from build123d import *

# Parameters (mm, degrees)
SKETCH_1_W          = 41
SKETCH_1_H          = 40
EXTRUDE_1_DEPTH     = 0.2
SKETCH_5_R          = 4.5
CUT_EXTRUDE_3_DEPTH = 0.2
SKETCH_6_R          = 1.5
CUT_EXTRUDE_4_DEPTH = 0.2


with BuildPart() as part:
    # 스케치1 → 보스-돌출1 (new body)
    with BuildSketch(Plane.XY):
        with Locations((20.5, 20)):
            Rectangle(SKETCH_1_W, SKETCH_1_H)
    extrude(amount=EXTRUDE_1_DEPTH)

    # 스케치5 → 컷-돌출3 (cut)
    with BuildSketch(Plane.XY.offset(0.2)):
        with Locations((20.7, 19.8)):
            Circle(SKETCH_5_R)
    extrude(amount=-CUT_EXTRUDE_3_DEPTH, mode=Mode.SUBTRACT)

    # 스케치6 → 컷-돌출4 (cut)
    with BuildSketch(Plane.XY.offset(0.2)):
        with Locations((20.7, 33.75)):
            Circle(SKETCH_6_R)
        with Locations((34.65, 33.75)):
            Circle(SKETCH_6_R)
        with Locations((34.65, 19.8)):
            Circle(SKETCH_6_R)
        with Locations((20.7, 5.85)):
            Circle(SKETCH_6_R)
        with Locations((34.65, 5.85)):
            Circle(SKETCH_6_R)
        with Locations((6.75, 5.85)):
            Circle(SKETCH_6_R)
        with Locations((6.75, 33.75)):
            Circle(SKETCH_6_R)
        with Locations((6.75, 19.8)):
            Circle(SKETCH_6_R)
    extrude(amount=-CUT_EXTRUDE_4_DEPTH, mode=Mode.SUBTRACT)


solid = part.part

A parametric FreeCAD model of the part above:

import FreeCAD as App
import Part
import Sketcher

V = App.Vector


def add_polygon(sketch, points):
    """Adds a closed chain of lines whose ends are joined by coincident constraints."""
    first, n = sketch.GeometryCount, len(points)
    for a, b in zip(points, points[1:] + points[:1]):
        sketch.addGeometry(Part.LineSegment(App.Vector(*a, 0), App.Vector(*b, 0)), False)
    for i in range(n):
        sketch.addConstraint(Sketcher.Constraint("Coincident", first + i, 2, first + (i + 1) % n, 1))

doc = App.newDocument("Part")
body = doc.addObject("PartDesign::Body", "Body")

# Sketch on XY plane
sketch1 = body.newObject("Sketcher::SketchObject", "Sketch")
sketch1.AttachmentSupport = (doc.getObject("XY_Plane"), [""])
sketch1.MapMode = "FlatFace"
add_polygon(sketch1, [(0, 40), (0, 0), (41, 0), (41, 40)])  # lines 0-3
sketch1.addConstraint([
    Sketcher.Constraint("Vertical", 0),
    Sketcher.Constraint("Horizontal", 1),
    Sketcher.Constraint("Vertical", 2),
    Sketcher.Constraint("Horizontal", 3),
    Sketcher.Constraint("Coincident", 0, 2, -1, 1),
    Sketcher.Constraint("DistanceX", 1, 1, 1, 2, 41.0),
    Sketcher.Constraint("DistanceY", 0, 2, 0, 1, 40.0),
])
pad1 = body.newObject("PartDesign::Pad", "Pad")
pad1.Profile = sketch1
pad1.Length = 0.2

# Sketch on XY plane
sketch2 = body.newObject("Sketcher::SketchObject", "Sketch001")
sketch2.AttachmentSupport = (doc.getObject("XY_Plane"), [""])
sketch2.MapMode = "FlatFace"
sketch2.AttachmentOffset = App.Placement(V(0, 0, 0.2), App.Rotation())
sketch2.addGeometry(Part.Circle(V(20.7, 19.8, 0), V(0, 0, 1), 4.5), False)
sketch2.addConstraint([
    Sketcher.Constraint("Diameter", 0, 9.0),
    Sketcher.Constraint("DistanceX", -1, 1, 0, 3, 20.7),
    Sketcher.Constraint("DistanceY", -1, 1, 0, 3, 19.8),
])
pocket1 = body.newObject("PartDesign::Pocket", "Pocket")
pocket1.Profile = sketch2
pocket1.Length = 0.2

# Sketch on XY plane
sketch3 = body.newObject("Sketcher::SketchObject", "Sketch002")
sketch3.AttachmentSupport = (doc.getObject("XY_Plane"), [""])
sketch3.MapMode = "FlatFace"
sketch3.AttachmentOffset = App.Placement(V(0, 0, 0.2), App.Rotation())
sketch3.addGeometry([
    Part.Circle(V(20.7, 33.8, 0), V(0, 0, 1), 1.5),  # 0
    Part.Circle(V(34.6, 33.8, 0), V(0, 0, 1), 1.5),  # 1
    Part.Circle(V(34.6, 19.8, 0), V(0, 0, 1), 1.5),  # 2
    Part.Circle(V(20.7, 5.8, 0), V(0, 0, 1), 1.5),  # 3
    Part.Circle(V(34.6, 5.8, 0), V(0, 0, 1), 1.5),  # 4
    Part.Circle(V(6.8, 5.8, 0), V(0, 0, 1), 1.5),  # 5
    Part.Circle(V(6.8, 33.8, 0), V(0, 0, 1), 1.5),  # 6
    Part.Circle(V(6.8, 19.8, 0), V(0, 0, 1), 1.5),  # 7
], False)
sketch3.addConstraint([
    Sketcher.Constraint("Equal", 0, 1),
    Sketcher.Constraint("Equal", 1, 2),
    Sketcher.Constraint("Equal", 2, 3),
    Sketcher.Constraint("Equal", 3, 4),
    Sketcher.Constraint("Equal", 4, 5),
    Sketcher.Constraint("Equal", 5, 6),
    Sketcher.Constraint("Equal", 6, 7),
    Sketcher.Constraint("Horizontal", 0, 3, 1, 3),
    Sketcher.Constraint("Horizontal", 3, 3, 4, 3),
    Sketcher.Constraint("Horizontal", 4, 3, 5, 3),
    Sketcher.Constraint("Horizontal", 1, 3, 6, 3),
    Sketcher.Constraint("Horizontal", 2, 3, 7, 3),
    Sketcher.Constraint("Vertical", 1, 3, 2, 3),
    Sketcher.Constraint("Vertical", 0, 3, 3, 3),
    Sketcher.Constraint("Vertical", 2, 3, 4, 3),
    Sketcher.Constraint("Vertical", 5, 3, 6, 3),
    Sketcher.Constraint("Vertical", 6, 3, 7, 3),
    Sketcher.Constraint("Diameter", 0, 3.0),
    Sketcher.Constraint("DistanceX", -1, 1, 0, 3, 20.7),
    Sketcher.Constraint("DistanceY", -1, 1, 2, 3, 19.8),
    Sketcher.Constraint("DistanceY", 3, 3, 0, 3, 27.9),
    Sketcher.Constraint("DistanceX", 5, 3, 4, 3, 27.9),
    Sketcher.Constraint("DistanceY", -1, 1, 0, 3, 33.75),
    Sketcher.Constraint("DistanceX", -1, 1, 1, 3, 34.65),
])
pocket2 = body.newObject("PartDesign::Pocket", "Pocket001")
pocket2.Profile = sketch3
pocket2.Length = 0.2

doc.recompute()
